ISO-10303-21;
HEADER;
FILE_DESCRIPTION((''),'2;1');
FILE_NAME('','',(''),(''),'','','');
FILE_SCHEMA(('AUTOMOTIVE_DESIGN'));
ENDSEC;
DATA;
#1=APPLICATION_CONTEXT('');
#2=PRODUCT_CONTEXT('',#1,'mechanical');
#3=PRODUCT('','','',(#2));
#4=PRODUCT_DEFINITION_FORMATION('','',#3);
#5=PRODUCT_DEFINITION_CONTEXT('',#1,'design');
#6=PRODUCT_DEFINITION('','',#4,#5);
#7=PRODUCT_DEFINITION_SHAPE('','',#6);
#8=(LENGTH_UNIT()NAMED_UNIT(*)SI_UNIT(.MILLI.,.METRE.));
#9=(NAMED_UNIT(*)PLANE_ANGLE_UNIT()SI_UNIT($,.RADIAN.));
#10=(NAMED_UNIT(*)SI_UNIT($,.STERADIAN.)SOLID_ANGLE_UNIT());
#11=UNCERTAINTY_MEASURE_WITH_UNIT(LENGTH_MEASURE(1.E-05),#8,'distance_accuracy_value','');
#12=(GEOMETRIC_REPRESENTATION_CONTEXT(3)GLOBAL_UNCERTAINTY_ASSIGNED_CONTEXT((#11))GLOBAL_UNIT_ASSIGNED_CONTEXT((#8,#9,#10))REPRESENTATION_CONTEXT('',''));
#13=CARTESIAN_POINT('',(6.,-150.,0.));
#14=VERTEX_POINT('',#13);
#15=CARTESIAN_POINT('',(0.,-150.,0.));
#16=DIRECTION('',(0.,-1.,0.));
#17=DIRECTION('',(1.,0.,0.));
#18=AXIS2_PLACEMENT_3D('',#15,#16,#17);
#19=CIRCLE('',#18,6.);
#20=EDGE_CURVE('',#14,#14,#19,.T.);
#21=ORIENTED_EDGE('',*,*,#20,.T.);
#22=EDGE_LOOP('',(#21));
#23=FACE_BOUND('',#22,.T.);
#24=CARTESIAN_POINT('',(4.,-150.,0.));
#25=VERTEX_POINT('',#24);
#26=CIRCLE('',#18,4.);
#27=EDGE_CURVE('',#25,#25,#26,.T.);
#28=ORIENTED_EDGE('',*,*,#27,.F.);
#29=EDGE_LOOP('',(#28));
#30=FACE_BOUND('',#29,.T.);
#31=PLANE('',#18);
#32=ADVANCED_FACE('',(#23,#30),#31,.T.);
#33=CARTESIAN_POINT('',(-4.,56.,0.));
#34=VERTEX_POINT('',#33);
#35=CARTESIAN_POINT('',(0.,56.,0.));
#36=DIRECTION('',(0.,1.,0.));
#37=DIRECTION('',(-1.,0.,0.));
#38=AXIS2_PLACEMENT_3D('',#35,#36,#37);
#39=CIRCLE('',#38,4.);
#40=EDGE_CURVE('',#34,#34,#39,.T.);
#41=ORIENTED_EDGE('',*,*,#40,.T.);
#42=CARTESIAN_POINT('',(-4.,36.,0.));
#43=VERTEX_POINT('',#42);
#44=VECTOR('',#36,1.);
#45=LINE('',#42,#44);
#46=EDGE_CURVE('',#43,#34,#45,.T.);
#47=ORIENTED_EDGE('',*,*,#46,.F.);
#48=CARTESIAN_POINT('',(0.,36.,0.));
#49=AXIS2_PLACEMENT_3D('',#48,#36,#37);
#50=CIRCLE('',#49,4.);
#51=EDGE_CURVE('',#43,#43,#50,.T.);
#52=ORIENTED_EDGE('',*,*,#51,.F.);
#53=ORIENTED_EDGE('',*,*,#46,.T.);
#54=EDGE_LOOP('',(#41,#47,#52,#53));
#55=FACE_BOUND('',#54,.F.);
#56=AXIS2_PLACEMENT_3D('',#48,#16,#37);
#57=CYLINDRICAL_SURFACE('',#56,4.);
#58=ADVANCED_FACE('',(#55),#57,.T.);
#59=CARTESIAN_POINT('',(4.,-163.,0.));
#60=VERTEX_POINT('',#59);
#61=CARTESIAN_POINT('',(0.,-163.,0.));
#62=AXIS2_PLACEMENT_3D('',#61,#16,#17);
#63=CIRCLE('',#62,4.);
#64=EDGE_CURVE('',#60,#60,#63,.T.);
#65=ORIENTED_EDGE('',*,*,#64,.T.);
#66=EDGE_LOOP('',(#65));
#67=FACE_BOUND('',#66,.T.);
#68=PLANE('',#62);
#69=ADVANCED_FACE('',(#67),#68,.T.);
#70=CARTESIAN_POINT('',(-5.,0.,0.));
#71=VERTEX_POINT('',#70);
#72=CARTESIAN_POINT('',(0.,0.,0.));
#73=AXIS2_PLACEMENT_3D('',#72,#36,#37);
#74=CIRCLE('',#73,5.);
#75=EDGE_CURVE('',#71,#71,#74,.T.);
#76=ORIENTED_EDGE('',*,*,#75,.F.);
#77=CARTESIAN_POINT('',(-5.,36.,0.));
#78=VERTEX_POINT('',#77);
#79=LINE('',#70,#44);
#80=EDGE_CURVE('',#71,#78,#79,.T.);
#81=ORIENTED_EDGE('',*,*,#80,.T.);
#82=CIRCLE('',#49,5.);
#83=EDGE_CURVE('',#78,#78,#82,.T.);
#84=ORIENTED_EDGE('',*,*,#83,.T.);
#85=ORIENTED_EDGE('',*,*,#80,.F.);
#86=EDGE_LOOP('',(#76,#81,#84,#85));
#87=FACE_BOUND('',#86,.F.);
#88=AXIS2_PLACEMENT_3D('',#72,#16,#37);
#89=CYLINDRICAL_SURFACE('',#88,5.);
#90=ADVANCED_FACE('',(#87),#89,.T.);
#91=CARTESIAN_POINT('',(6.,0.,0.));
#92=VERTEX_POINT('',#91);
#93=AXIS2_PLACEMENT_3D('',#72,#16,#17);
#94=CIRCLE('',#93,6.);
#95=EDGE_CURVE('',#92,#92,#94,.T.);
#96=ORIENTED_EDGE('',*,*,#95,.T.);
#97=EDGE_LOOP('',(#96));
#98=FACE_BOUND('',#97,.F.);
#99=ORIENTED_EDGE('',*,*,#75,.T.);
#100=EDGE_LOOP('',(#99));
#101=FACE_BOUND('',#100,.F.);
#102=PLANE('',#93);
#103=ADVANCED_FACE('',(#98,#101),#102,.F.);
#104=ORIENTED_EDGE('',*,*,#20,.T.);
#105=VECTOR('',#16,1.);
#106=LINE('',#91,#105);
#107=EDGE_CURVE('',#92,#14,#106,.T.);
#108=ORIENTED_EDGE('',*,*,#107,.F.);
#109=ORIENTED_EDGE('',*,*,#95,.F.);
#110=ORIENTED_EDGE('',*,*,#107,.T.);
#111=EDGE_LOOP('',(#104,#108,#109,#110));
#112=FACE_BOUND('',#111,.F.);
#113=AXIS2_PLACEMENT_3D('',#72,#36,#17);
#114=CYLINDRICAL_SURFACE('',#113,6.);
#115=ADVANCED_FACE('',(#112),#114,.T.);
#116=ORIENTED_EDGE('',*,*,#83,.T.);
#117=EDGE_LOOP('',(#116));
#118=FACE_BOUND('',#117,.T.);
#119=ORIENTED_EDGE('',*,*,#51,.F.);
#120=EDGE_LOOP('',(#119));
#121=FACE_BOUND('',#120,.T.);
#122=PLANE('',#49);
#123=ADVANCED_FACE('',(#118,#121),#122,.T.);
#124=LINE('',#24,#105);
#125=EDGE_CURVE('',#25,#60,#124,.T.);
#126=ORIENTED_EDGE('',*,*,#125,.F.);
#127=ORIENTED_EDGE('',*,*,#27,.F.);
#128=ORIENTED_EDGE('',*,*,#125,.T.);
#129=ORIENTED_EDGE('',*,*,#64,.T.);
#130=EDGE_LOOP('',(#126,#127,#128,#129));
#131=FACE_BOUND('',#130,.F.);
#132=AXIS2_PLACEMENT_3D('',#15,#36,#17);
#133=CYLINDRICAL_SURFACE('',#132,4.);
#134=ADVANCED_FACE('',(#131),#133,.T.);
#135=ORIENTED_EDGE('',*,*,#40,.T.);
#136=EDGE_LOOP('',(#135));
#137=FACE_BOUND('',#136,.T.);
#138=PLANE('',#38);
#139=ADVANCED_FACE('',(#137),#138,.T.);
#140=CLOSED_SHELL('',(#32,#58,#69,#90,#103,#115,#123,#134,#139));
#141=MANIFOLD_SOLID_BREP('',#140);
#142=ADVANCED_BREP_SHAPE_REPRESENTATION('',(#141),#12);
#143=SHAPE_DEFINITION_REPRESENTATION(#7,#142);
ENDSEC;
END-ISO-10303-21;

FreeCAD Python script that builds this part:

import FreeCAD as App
import Part
import Sketcher

V = App.Vector

doc = App.newDocument("Part")
body = doc.addObject("PartDesign::Body", "Body")

sketch1 = body.newObject("Sketcher::SketchObject", "Sketch")
sketch1.AttachmentSupport = (doc.getObject("XZ_Plane"), [""])
sketch1.MapMode = "FlatFace"
sketch1.addGeometry(Part.Circle(V(0, 0, 0), V(0, 0, 1), 6), False)
sketch1.addConstraint([
    Sketcher.Constraint("Coincident", 0, 3, -1, 1),
    Sketcher.Constraint("Diameter", 0, 12.0),
])
pad1 = body.newObject("PartDesign::Pad", "Pad")
pad1.Profile = sketch1
pad1.Length = 150

sketch2 = body.newObject("Sketcher::SketchObject", "Sketch001")
sketch2.AttachmentSupport = (doc.getObject("XZ_Plane"), [""])
sketch2.MapMode = "FlatFace"
sketch2.addGeometry(Part.Circle(V(0, 0, 0), V(0, 0, 1), 5), False)
sketch2.addConstraint([
    Sketcher.Constraint("Coincident", 0, 3, -1, 1),
    Sketcher.Constraint("Diameter", 0, 10.0),
])
pad2 = body.newObject("PartDesign::Pad", "Pad001")
pad2.Profile = sketch2
pad2.Length = 36
pad2.Reversed = True

sketch3 = body.newObject("Sketcher::SketchObject", "Sketch002")
sketch3.AttachmentSupport = (doc.getObject("XZ_Plane"), [""])
sketch3.MapMode = "FlatFace"
sketch3.AttachmentOffset = App.Placement(V(0, 0, -36), App.Rotation())
sketch3.addGeometry(Part.Circle(V(0, 0, 0), V(0, 0, 1), 4), False)
sketch3.addConstraint([
    Sketcher.Constraint("Coincident", 0, 3, -1, 1),
    Sketcher.Constraint("Diameter", 0, 8.0),
])
pad3 = body.newObject("PartDesign::Pad", "Pad002")
pad3.Profile = sketch3
pad3.Length = 20
pad3.Reversed = True

sketch4 = body.newObject("Sketcher::SketchObject", "Sketch003")
sketch4.AttachmentSupport = (doc.getObject("XZ_Plane"), [""])
sketch4.MapMode = "FlatFace"
sketch4.AttachmentOffset = App.Placement(V(0, 0, 150), App.Rotation())
sketch4.addGeometry(Part.Circle(V(0, 0, 0), V(0, 0, 1), 4), False)
sketch4.addConstraint([
    Sketcher.Constraint("Coincident", 0, 3, -1, 1),
    Sketcher.Constraint("Diameter", 0, 8.0),
])
pad4 = body.newObject("PartDesign::Pad", "Pad003")
pad4.Profile = sketch4
pad4.Length = 13

doc.recompute()
